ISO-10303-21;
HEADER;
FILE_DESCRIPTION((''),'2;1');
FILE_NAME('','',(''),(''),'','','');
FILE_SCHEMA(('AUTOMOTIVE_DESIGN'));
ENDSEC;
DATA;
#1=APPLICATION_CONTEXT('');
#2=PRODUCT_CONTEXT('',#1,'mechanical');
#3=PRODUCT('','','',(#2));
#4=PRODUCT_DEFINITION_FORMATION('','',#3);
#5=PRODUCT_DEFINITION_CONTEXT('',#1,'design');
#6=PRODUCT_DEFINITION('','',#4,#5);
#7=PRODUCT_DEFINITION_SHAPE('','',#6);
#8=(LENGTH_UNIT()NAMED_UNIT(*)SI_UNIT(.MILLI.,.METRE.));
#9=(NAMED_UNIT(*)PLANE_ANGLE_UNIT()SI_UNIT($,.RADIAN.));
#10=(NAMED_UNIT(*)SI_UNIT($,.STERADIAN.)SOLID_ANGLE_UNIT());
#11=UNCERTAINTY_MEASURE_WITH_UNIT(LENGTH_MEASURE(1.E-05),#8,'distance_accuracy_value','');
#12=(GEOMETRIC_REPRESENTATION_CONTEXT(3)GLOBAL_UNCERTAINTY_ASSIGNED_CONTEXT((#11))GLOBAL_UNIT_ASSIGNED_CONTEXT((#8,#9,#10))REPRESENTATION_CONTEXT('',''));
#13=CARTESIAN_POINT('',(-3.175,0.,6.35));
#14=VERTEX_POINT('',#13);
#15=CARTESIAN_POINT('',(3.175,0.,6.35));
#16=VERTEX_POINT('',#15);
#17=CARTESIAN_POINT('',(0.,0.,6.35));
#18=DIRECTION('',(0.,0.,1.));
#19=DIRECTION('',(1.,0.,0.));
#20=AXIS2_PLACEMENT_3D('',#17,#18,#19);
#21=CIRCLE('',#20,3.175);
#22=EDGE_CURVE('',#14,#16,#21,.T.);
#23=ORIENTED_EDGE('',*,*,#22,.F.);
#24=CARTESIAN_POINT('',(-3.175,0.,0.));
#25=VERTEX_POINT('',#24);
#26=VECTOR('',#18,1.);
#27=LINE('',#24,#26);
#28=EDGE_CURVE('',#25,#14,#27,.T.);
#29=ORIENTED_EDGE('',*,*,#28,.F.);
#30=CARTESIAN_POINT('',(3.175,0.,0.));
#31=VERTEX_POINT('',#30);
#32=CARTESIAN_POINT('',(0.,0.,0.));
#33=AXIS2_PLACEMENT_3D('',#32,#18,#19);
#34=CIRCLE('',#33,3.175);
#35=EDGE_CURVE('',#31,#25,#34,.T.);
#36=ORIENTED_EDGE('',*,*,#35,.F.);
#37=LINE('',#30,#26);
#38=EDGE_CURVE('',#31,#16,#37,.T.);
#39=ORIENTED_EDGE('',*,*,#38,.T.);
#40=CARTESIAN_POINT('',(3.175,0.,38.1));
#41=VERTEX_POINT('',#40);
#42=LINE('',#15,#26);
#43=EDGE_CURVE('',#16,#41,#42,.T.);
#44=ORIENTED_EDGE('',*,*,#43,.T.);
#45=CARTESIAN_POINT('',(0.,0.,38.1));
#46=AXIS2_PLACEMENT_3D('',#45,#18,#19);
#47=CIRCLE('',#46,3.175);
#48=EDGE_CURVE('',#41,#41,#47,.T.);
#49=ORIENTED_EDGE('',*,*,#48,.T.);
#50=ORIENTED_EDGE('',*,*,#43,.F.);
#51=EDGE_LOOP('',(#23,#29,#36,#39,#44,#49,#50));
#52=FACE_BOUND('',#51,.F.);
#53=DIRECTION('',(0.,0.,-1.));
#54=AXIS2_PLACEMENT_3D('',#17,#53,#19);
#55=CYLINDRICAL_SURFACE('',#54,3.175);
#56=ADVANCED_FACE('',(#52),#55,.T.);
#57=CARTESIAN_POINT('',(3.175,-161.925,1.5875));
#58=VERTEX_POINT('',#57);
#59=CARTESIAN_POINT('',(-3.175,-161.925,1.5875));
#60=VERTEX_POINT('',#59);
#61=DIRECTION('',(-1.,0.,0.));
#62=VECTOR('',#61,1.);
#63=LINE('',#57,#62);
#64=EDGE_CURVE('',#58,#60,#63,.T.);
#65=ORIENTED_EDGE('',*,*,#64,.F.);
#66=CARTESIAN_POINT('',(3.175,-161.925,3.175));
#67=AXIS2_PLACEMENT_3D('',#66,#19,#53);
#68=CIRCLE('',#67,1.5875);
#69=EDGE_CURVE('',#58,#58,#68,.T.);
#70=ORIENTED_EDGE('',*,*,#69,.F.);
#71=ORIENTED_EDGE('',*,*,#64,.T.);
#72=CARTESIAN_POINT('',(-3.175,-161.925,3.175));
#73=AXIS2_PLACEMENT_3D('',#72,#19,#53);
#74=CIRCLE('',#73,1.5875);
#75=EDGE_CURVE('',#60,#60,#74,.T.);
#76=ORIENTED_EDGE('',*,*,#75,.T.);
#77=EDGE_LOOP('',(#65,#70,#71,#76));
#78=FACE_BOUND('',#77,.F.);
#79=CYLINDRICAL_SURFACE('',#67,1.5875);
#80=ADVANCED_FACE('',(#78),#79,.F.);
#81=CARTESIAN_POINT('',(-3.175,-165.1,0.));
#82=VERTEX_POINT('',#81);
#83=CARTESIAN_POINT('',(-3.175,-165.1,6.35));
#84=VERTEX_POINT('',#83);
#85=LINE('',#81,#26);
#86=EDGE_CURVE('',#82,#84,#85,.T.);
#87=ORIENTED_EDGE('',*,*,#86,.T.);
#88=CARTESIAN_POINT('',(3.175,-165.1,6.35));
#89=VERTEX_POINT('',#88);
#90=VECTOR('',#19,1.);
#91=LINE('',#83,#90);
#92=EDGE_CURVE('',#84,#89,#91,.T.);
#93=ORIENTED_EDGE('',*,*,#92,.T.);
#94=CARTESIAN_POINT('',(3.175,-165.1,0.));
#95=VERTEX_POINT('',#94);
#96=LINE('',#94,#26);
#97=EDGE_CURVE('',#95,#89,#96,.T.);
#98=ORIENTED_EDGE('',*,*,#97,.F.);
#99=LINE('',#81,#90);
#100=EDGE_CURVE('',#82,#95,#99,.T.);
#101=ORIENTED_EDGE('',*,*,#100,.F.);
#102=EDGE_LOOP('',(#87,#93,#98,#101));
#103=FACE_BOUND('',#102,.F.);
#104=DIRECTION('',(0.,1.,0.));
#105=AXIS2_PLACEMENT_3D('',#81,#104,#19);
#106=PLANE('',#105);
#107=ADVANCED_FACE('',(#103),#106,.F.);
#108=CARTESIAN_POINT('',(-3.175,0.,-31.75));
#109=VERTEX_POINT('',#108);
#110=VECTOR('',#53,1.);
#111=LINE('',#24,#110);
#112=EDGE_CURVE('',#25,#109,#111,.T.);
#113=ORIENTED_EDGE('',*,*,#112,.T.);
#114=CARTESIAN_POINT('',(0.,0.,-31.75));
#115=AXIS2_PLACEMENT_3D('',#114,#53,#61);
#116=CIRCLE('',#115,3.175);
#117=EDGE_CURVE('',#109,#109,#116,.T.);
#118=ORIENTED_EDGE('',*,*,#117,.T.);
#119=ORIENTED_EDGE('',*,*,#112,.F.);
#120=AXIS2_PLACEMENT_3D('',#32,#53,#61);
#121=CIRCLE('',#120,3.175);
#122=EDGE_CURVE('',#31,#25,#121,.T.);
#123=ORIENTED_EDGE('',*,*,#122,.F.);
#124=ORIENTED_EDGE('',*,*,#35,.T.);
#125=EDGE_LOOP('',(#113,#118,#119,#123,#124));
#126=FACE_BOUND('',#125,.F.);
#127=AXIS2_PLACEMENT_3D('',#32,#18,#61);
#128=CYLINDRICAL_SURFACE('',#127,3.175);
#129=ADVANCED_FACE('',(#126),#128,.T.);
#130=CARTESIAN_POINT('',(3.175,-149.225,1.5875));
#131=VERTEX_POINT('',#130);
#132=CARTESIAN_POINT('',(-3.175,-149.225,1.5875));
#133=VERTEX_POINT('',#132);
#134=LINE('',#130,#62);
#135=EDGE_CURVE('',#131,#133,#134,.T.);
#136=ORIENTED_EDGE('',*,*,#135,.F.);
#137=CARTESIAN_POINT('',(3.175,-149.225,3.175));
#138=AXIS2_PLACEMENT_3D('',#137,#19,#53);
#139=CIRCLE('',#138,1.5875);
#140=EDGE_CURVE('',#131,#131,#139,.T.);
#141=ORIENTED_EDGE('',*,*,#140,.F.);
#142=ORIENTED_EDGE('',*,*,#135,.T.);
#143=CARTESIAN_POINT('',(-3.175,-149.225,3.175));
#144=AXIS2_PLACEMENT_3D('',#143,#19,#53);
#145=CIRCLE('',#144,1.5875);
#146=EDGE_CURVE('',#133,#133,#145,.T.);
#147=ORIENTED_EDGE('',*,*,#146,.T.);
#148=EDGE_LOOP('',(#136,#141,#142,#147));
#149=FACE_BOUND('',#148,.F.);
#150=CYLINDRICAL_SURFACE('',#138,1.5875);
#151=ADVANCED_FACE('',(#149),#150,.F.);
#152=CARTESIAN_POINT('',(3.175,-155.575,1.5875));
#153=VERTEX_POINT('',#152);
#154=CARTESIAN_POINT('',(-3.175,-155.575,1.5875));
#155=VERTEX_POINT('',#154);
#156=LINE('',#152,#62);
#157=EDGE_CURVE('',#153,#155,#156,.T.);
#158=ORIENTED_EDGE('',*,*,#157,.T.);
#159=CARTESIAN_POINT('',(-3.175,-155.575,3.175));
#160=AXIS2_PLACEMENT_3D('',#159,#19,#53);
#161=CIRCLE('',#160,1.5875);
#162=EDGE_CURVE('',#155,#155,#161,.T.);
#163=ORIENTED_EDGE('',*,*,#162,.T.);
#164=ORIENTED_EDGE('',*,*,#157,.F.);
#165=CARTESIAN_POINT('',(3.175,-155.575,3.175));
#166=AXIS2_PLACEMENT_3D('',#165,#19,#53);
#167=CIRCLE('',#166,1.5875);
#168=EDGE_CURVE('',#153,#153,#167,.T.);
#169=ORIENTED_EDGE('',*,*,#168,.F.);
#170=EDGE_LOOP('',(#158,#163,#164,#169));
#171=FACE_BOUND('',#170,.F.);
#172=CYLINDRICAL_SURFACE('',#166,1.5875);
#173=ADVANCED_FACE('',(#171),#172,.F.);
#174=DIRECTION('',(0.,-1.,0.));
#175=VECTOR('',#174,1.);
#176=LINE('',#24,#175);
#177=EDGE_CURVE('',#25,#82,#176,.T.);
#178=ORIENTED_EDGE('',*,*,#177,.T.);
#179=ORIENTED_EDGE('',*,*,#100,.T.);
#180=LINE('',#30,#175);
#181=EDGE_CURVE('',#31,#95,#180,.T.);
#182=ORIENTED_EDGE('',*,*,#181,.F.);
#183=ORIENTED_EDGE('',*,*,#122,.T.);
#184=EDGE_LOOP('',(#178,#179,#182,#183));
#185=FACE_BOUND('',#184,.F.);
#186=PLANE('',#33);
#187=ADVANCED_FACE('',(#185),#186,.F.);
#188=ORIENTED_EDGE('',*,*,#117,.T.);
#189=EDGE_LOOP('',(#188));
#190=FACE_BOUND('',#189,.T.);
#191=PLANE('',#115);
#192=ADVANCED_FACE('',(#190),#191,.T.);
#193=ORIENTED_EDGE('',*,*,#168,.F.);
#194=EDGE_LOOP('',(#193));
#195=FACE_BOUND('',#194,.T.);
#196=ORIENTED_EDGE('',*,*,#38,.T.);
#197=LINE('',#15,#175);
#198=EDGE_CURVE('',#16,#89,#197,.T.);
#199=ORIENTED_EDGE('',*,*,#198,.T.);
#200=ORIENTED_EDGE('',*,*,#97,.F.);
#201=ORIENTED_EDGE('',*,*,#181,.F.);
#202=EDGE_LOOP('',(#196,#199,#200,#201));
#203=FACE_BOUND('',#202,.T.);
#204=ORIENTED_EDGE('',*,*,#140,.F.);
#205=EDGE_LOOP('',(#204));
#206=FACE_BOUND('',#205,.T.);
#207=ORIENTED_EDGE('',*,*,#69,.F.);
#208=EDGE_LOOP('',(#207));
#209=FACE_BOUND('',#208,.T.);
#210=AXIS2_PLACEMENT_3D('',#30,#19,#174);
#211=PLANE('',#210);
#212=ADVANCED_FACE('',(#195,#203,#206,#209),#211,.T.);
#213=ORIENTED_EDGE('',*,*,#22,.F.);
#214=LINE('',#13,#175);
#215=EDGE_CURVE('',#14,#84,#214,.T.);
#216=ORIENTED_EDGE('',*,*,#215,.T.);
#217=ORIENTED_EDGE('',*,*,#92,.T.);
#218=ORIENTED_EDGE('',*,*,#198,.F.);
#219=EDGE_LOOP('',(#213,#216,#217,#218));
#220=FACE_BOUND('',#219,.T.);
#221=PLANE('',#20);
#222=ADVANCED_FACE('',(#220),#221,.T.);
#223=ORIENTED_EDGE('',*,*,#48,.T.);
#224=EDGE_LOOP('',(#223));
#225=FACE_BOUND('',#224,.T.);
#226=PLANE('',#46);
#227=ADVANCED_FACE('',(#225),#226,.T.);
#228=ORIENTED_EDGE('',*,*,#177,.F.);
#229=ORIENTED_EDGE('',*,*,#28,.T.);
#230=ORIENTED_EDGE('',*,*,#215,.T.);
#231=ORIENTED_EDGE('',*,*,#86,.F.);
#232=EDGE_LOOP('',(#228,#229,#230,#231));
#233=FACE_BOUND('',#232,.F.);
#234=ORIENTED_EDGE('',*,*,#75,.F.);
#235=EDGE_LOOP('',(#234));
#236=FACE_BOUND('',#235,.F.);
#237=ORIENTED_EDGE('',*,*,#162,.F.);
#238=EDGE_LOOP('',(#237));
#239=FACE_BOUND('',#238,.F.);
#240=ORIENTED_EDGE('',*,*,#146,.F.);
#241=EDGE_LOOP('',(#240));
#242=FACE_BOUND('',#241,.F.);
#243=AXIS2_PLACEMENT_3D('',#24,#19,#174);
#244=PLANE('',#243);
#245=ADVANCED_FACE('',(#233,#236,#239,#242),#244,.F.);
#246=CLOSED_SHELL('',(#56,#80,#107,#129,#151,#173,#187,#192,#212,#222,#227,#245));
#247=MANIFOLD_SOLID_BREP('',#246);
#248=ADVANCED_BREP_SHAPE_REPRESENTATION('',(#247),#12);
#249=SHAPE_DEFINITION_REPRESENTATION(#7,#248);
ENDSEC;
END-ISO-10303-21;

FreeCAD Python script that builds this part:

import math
import FreeCAD as App
import Part
import Sketcher

V = App.Vector
Q = App.Units.Quantity

doc = App.newDocument("Part")
body = doc.addObject("PartDesign::Body", "Body")

sketch1 = body.newObject("Sketcher::SketchObject", "Sketch")
sketch1.AttachmentSupport = (doc.getObject("XY_Plane"), [""])
sketch1.MapMode = "FlatFace"
sketch1.addGeometry([
    Part.ArcOfCircle(Part.Circle(V(0, 0, 0), V(0, 0, 1), 3.2), math.radians(0), math.radians(180)),
    Part.LineSegment(V(-3.2, 0, 0), V(-3.2, -165.1, 0)),
    Part.LineSegment(V(-3.2, -165.1, 0), V(3.2, -165.1, 0)),
    Part.LineSegment(V(3.2, -165.1, 0), V(3.2, 0, 0)),
], False)
sketch1.addConstraint([
    Sketcher.Constraint("Tangent", 0, 2, 1, 1),
    Sketcher.Constraint("Coincident", 1, 2, 2, 1),
    Sketcher.Constraint("Coincident", 2, 2, 3, 1),
    Sketcher.Constraint("Tangent", 3, 2, 0, 1),
    Sketcher.Constraint("Vertical", 1),
    Sketcher.Constraint("Horizontal", 2),
    Sketcher.Constraint("Vertical", 3),
    Sketcher.Constraint("Coincident", 0, 3, -1, 1),
    Sketcher.Constraint("DistanceY", 1, 2, 1, 1, Q("6.5 in")),
    Sketcher.Constraint("Radius", 0, Q("0.125 in")),
])
pad1 = body.newObject("PartDesign::Pad", "Pad")
pad1.Profile = sketch1
pad1.Length = Q("0.25 in")

sketch2 = body.newObject("Sketcher::SketchObject", "Sketch001")
sketch2.AttachmentSupport = (doc.getObject("XY_Plane"), [""])
sketch2.MapMode = "FlatFace"
sketch2.AttachmentOffset = App.Placement(V(0, 0, 0.25 * 25.4), App.Rotation())
sketch2.addGeometry(Part.Circle(V(0, 0, 0), V(0, 0, 1), 3.2), False)
sketch2.addConstraint([
    Sketcher.Constraint("Coincident", 0, 3, -1, 1),
    Sketcher.Constraint("Diameter", 0, Q("0.25 in")),
])
pad2 = body.newObject("PartDesign::Pad", "Pad001")
pad2.Profile = sketch2
pad2.Length = Q("1.25 in")

sketch3 = body.newObject("Sketcher::SketchObject", "Sketch002")
sketch3.AttachmentSupport = (doc.getObject("XY_Plane"), [""])
sketch3.MapMode = "FlatFace"
sketch3.addGeometry(Part.Circle(V(0, 0, 0), V(0, 0, 1), 3.2), False)
sketch3.addConstraint([
    Sketcher.Constraint("Coincident", 0, 3, -1, 1),
    Sketcher.Constraint("Diameter", 0, Q("0.25 in")),
])
pad3 = body.newObject("PartDesign::Pad", "Pad002")
pad3.Profile = sketch3
pad3.Length = Q("1.25 in")
pad3.Reversed = True

sketch4 = body.newObject("Sketcher::SketchObject", "Sketch003")
sketch4.AttachmentSupport = (doc.getObject("YZ_Plane"), [""])
sketch4.MapMode = "FlatFace"
sketch4.AttachmentOffset = App.Placement(V(0, 0, 0.125 * 25.4), App.Rotation())
sketch4.addGeometry([
    Part.Circle(V(-161.9, 3.2, 0), V(0, 0, 1), 1.6),
    Part.Circle(V(-155.6, 3.2, 0), V(0, 0, 1), 1.6),
    Part.Circle(V(-149.2, 3.2, 0), V(0, 0, 1), 1.6),
], False)
sketch4.addConstraint([
    Sketcher.Constraint("Equal", 0, 1),
    Sketcher.Constraint("Equal", 1, 2),
    Sketcher.Constraint("Horizontal", 0, 3, 1, 3),
    Sketcher.Constraint("Horizontal", 1, 3, 2, 3),
    Sketcher.Constraint("Diameter", 0, Q("0.125 in")),
    Sketcher.Constraint("DistanceX", 0, 3, 1, 3, Q("0.25 in")),
    Sketcher.Constraint("DistanceX", 1, 3, 2, 3, Q("0.25 in")),
    Sketcher.Constraint("DistanceY", -1, 1, 0, 3, Q("0.125 in")),
    Sketcher.Constraint("DistanceX", 0, 3, -1, 1, Q("6.375 in")),
])
pocket1 = body.newObject("PartDesign::Pocket", "Pocket")
pocket1.Profile = sketch4
pocket1.Length = Q("0.5 in")

doc.recompute()
